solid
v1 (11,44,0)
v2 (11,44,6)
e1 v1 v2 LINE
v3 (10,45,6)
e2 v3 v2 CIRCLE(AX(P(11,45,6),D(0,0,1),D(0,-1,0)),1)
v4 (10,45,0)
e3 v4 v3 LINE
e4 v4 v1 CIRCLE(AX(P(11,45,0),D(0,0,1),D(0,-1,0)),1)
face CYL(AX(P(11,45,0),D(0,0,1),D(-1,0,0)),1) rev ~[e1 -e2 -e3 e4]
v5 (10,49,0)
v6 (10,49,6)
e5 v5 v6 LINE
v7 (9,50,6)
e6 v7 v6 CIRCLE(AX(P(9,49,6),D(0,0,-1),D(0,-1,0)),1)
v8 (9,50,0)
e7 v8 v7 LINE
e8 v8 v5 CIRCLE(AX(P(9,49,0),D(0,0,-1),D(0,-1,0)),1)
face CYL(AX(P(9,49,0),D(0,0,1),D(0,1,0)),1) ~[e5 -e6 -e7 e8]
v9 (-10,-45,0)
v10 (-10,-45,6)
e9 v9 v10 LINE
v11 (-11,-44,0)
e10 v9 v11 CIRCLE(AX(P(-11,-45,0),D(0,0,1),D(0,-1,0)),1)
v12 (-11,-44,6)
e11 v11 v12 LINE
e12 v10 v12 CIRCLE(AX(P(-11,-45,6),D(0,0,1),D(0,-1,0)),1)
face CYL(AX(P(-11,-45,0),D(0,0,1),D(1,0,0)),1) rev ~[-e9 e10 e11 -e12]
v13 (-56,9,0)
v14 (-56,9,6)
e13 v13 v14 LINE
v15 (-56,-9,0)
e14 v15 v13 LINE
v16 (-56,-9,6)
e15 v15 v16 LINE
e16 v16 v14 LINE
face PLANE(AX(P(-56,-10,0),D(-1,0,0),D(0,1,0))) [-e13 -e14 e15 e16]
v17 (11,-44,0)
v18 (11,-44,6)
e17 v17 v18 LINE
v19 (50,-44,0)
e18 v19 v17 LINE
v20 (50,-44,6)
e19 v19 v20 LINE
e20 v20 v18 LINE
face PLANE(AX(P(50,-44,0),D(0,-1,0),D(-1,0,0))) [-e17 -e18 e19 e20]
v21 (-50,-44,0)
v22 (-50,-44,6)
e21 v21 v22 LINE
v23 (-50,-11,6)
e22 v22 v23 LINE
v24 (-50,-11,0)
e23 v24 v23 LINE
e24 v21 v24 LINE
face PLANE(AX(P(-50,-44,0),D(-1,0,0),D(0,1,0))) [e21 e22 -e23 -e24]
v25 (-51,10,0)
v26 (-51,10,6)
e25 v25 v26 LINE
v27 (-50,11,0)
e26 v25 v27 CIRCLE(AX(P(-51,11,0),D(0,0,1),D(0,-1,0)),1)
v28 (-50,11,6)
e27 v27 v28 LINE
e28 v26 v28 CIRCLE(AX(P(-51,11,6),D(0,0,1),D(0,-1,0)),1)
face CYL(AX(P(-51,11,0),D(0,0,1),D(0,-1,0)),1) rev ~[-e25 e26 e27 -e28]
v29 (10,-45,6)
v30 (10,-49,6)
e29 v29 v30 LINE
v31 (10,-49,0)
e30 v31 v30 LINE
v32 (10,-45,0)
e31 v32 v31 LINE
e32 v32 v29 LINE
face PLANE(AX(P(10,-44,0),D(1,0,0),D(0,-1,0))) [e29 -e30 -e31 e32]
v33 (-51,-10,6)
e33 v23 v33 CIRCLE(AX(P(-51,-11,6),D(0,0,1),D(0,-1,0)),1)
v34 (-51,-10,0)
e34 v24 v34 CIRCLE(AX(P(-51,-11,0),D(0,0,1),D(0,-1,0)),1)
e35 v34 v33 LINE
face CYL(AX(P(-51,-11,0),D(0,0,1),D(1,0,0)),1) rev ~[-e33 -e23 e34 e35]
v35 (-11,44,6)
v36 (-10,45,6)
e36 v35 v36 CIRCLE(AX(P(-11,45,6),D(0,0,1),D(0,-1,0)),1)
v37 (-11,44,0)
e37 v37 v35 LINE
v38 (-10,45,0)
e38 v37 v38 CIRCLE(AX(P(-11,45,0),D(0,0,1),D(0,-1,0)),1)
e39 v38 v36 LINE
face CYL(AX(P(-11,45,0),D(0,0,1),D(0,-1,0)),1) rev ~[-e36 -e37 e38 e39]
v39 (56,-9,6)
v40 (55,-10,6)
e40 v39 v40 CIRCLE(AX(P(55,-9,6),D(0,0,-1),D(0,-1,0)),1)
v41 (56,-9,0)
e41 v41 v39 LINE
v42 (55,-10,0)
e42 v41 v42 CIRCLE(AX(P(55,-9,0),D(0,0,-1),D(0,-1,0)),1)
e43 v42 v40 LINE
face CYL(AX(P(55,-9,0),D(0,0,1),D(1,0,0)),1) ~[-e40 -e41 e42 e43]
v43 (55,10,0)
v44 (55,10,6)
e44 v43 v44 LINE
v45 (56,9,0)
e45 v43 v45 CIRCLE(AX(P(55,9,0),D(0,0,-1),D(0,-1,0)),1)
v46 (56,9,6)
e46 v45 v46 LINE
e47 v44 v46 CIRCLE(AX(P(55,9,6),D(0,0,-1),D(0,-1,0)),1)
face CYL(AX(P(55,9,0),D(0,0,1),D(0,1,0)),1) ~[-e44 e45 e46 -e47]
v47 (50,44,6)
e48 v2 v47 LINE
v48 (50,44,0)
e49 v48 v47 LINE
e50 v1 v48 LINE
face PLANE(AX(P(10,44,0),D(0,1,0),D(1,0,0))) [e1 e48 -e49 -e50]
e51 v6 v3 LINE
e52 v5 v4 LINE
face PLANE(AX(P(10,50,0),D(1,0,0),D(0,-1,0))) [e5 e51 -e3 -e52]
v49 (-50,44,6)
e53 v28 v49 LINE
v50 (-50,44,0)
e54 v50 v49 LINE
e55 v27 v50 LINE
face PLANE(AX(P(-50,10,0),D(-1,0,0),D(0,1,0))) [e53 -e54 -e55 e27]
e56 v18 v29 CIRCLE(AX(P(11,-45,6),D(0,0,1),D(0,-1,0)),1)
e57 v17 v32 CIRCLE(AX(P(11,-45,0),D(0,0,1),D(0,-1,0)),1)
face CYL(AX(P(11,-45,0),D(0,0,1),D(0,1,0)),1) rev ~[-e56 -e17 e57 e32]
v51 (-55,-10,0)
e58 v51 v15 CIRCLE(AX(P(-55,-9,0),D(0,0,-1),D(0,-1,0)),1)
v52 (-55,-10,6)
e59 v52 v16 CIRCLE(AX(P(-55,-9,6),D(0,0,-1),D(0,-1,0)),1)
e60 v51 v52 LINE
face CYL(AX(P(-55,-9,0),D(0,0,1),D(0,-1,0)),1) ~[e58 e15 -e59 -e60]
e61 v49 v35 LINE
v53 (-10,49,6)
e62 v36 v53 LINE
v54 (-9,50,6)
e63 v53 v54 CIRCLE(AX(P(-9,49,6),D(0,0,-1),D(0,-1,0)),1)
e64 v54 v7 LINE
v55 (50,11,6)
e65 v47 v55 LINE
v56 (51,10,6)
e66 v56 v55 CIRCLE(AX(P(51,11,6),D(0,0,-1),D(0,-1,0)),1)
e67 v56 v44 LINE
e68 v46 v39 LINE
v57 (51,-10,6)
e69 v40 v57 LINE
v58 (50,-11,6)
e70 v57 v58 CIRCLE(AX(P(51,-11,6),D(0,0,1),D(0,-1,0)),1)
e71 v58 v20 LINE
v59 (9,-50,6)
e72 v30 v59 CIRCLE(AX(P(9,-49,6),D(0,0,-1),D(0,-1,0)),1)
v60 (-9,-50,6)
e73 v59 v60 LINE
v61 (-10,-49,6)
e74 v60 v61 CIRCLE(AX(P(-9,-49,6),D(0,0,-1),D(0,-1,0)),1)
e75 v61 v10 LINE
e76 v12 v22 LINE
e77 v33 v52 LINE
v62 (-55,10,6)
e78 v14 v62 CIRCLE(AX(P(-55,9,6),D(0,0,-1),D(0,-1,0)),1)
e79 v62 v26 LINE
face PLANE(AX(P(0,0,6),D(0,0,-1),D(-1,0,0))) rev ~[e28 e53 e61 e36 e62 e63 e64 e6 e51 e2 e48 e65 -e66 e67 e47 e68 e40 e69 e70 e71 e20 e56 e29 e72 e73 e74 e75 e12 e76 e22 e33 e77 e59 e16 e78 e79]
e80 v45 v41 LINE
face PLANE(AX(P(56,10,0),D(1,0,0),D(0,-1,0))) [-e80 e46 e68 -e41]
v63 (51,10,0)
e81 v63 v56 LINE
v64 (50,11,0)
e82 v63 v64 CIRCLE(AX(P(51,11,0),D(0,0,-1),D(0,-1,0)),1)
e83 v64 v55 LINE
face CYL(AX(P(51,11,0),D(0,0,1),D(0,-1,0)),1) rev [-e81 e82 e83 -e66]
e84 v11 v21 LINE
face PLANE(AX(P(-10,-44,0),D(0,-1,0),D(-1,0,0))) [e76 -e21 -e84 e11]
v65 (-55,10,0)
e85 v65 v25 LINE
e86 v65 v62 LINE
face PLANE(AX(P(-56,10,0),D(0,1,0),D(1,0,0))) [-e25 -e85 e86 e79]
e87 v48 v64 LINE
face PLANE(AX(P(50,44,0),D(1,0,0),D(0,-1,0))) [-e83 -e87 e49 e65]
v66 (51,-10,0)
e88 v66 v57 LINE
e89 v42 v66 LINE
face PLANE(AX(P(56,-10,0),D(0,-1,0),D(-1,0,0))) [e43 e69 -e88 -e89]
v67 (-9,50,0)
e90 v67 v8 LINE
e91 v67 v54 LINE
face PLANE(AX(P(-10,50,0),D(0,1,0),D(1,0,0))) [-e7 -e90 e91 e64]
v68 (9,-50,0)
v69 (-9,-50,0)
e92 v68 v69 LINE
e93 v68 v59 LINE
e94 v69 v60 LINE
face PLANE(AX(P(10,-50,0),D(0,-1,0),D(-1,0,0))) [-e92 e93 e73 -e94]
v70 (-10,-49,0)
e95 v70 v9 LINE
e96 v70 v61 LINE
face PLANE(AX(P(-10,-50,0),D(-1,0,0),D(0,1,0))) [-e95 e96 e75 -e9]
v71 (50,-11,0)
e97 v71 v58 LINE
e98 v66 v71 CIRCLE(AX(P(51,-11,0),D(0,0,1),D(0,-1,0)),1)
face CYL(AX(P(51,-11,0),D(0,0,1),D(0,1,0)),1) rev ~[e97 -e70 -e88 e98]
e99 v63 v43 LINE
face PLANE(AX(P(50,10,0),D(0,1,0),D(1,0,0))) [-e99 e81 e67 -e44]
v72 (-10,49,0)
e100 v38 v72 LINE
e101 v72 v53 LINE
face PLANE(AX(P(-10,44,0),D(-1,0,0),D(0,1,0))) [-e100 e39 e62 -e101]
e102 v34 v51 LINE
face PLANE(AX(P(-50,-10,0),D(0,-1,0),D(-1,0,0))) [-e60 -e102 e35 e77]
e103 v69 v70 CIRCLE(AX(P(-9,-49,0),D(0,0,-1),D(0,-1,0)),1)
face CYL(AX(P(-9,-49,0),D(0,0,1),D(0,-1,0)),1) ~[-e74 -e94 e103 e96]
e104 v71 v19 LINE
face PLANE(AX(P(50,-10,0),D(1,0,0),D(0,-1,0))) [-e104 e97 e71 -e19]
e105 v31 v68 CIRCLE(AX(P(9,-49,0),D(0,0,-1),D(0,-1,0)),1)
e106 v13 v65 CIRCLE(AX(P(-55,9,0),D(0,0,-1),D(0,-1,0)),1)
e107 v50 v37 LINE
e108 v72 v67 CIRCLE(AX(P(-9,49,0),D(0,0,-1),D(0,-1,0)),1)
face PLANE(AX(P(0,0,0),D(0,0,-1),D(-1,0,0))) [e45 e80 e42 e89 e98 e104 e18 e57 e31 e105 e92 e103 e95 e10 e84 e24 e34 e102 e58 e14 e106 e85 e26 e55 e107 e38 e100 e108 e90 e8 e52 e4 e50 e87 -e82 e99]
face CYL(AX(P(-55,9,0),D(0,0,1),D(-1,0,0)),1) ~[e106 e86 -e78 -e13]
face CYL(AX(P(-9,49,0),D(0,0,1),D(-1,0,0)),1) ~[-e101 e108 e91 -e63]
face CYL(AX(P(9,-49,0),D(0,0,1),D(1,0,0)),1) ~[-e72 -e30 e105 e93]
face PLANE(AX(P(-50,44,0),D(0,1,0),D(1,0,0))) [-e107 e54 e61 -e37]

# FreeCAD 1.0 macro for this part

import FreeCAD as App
import Part
import Sketcher
from FreeCAD import Vector


def edges_at(feature, points):
    """Names of the edges that pass closest to the given points."""
    edges = feature.Shape.Edges
    near = lambda p: min(range(len(edges)), key=lambda i: edges[i].distToShape(Part.Vertex(*p))[0])
    return sorted({f"Edge{near(p) + 1}" for p in points})


def add_polygon(sketch, points):
    """Adds a closed chain of lines whose ends are joined by coincident constraints."""
    first, n = sketch.GeometryCount, len(points)
    for a, b in zip(points, points[1:] + points[:1]):
        sketch.addGeometry(Part.LineSegment(App.Vector(*a, 0), App.Vector(*b, 0)), False)
    for i in range(n):
        sketch.addConstraint(Sketcher.Constraint("Coincident", first + i, 2, first + (i + 1) % n, 1))

doc = App.newDocument("Part")
body = doc.addObject("PartDesign::Body", "Body")

sketch1 = doc.addObject("Sketcher::SketchObject", "Sketch")
body.addObject(sketch1)
sketch1.AttachmentSupport = (doc.XY_Plane, [""])
sketch1.MapMode = "FlatFace"
add_polygon(sketch1, [(56, 10), (50, 10), (50, 44), (10, 44), (10, 50), (-10, 50), (-10, 44), (-50, 44), (-50, 10), (-56, 10), (-56, -10), (-50, -10), (-50, -44), (-10, -44), (-10, -50), (10, -50), (10, -44), (50, -44), (50, -10), (56, -10)])
sketch1.addConstraint([
    Sketcher.Constraint("Horizontal", 0),
    Sketcher.Constraint("Vertical", 1),
    Sketcher.Constraint("Horizontal", 2),
    Sketcher.Constraint("Vertical", 3),
    Sketcher.Constraint("Horizontal", 4),
    Sketcher.Constraint("Vertical", 5),
    Sketcher.Constraint("Horizontal", 6),
    Sketcher.Constraint("Vertical", 7),
    Sketcher.Constraint("Horizontal", 8),
    Sketcher.Constraint("Vertical", 9),
    Sketcher.Constraint("Horizontal", 10),
    Sketcher.Constraint("Vertical", 11),
    Sketcher.Constraint("Horizontal", 12),
    Sketcher.Constraint("Vertical", 13),
    Sketcher.Constraint("Horizontal", 14),
    Sketcher.Constraint("Vertical", 15),
    Sketcher.Constraint("Horizontal", 16),
    Sketcher.Constraint("Vertical", 17),
    Sketcher.Constraint("Horizontal", 18),
    Sketcher.Constraint("Vertical", 19),
    Sketcher.Constraint("Symmetric", 0, 2, 10, 2, -1, 1),
    Sketcher.Constraint("Symmetric", 2, 2, 12, 2, -1, 1),
    Sketcher.Constraint("Symmetric", 4, 2, 14, 2, -1, 1),
    Sketcher.Constraint("Symmetric", 6, 2, 16, 2, -1, 1),
    Sketcher.Constraint("Symmetric", 8, 2, 18, 2, -1, 1),
    Sketcher.Constraint("Symmetric", 2, 2, 5, 2, -2),
    Sketcher.Constraint("Symmetric", 0, 2, 7, 2, -2),
    Sketcher.Constraint("Equal", 18, 3),
    Sketcher.Constraint("Equal", 14, 9),
    Sketcher.Constraint("DistanceX", 0, 2, 0, 1, 6.0),
    Sketcher.Constraint("DistanceX", 2, 2, 2, 1, 40.0),
    Sketcher.Constraint("DistanceX", 4, 2, 4, 1, 20.0),
    Sketcher.Constraint("DistanceY", 1, 1, 1, 2, 34.0),
])
pad1 = doc.addObject("PartDesign::Pad", "Pad")
body.addObject(pad1)
pad1.Profile = sketch1
pad1.Length = 6
doc.recompute()

fillet = doc.addObject("PartDesign::Fillet", "Fillet")
body.addObject(fillet)
fillet.Base = (pad1, edges_at(pad1, [
    (10, -44, 3),
    (10, -50, 3),
    (-10, -50, 3),
    (-10, -44, 3),
    (-50, -10, 3),
    (-56, -10, 3),
    (-56, 10, 3),
    (-50, 10, 3),
    (-10, 44, 3),
    (-10, 50, 3),
    (10, 50, 3),
    (10, 44, 3),
    (50, 10, 3),
    (56, 10, 3),
    (56, -10, 3),
    (50, -10, 3),
]))
fillet.Radius = 1

doc.recompute()
